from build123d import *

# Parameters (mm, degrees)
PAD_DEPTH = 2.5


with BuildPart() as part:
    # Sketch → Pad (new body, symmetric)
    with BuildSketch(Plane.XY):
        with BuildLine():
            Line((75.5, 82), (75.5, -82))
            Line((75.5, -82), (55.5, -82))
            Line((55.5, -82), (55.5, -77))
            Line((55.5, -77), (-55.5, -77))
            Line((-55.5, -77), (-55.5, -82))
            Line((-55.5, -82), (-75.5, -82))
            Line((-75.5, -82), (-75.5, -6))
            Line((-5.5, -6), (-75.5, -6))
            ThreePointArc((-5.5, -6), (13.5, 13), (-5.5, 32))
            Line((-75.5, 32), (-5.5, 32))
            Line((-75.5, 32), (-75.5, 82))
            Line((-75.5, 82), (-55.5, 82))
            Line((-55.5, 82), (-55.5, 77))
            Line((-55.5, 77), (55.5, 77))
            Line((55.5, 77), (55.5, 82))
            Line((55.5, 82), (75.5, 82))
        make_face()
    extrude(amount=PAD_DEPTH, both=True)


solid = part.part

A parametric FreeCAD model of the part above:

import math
import FreeCAD as App
import Part
import Sketcher

V = App.Vector
Q = App.Units.Quantity

doc = App.newDocument("Part")
body = doc.addObject("PartDesign::Body", "Body")

# Sketch on XY plane
sketch1 = body.newObject("Sketcher::SketchObject", "Sketch")
sketch1.AttachmentSupport = (doc.getObject("XY_Plane"), [""])
sketch1.MapMode = "FlatFace"
sketch1.addGeometry([
    Part.LineSegment(V(76, -82, 0), V(76, 82, 0)),  # 0
    Part.LineSegment(V(76, 82, 0), V(56, 82, 0)),  # 1
    Part.LineSegment(V(56, 82, 0), V(56, 77, 0)),  # 2
    Part.LineSegment(V(56, 77, 0), V(-56, 77, 0)),  # 3
    Part.LineSegment(V(-56, 77, 0), V(-56, 82, 0)),  # 4
    Part.LineSegment(V(-56, 82, 0), V(-76, 82, 0)),  # 5
    Part.LineSegment(V(-76, 82, 0), V(-76, 32, 0)),  # 6
    Part.LineSegment(V(-76, 32, 0), V(-6, 32, 0)),  # 7
    Part.ArcOfCircle(Part.Circle(V(-6, 13, 0), V(0, 0, 1), 19), math.radians(-90), math.radians(90)),  # 8
    Part.LineSegment(V(-6, -6, 0), V(-76, -6, 0)),  # 9
    Part.LineSegment(V(-76, -6, 0), V(-76, -82, 0)),  # 10
    Part.LineSegment(V(-76, -82, 0), V(-56, -82, 0)),  # 11
    Part.LineSegment(V(-56, -82, 0), V(-56, -77, 0)),  # 12
    Part.LineSegment(V(-56, -77, 0), V(56, -77, 0)),  # 13
    Part.LineSegment(V(56, -77, 0), V(56, -82, 0)),  # 14
    Part.LineSegment(V(56, -82, 0), V(76, -82, 0)),  # 15
], False)
sketch1.addConstraint([
    Sketcher.Constraint("Coincident", 0, 2, 1, 1),
    Sketcher.Constraint("Coincident", 1, 2, 2, 1),
    Sketcher.Constraint("Coincident", 2, 2, 3, 1),
    Sketcher.Constraint("Coincident", 3, 2, 4, 1),
    Sketcher.Constraint("Coincident", 4, 2, 5, 1),
    Sketcher.Constraint("Coincident", 5, 2, 6, 1),
    Sketcher.Constraint("Coincident", 6, 2, 7, 1),
    Sketcher.Constraint("Tangent", 7, 2, 8, 2),
    Sketcher.Constraint("Tangent", 8, 1, 9, 1),
    Sketcher.Constraint("Coincident", 9, 2, 10, 1),
    Sketcher.Constraint("Coincident", 10, 2, 11, 1),
    Sketcher.Constraint("Coincident", 11, 2, 12, 1),
    Sketcher.Constraint("Coincident", 12, 2, 13, 1),
    Sketcher.Constraint("Coincident", 13, 2, 14, 1),
    Sketcher.Constraint("Coincident", 14, 2, 15, 1),
    Sketcher.Constraint("Coincident", 15, 2, 0, 1),
    Sketcher.Constraint("Vertical", 0),
    Sketcher.Constraint("Horizontal", 1),
    Sketcher.Constraint("Vertical", 2),
    Sketcher.Constraint("Horizontal", 3),
    Sketcher.Constraint("Vertical", 4),
    Sketcher.Constraint("Horizontal", 5),
    Sketcher.Constraint("Vertical", 6),
    Sketcher.Constraint("Horizontal", 7),
    Sketcher.Constraint("Horizontal", 9),
    Sketcher.Constraint("Vertical", 10),
    Sketcher.Constraint("Horizontal", 11),
    Sketcher.Constraint("Vertical", 12),
    Sketcher.Constraint("Horizontal", 13),
    Sketcher.Constraint("Vertical", 14),
    Sketcher.Constraint("Horizontal", 15),
    Sketcher.Constraint("Symmetric", 0, 2, 10, 2, -1, 1),
    Sketcher.Constraint("Symmetric", 2, 2, 12, 2, -1, 1),
    Sketcher.Constraint("Symmetric", 4, 2, 14, 2, -1, 1),
    Sketcher.Constraint("Symmetric", 1, 2, 4, 2, -2),
    Sketcher.Constraint("Vertical", 6, 2, 9, 2),
    Sketcher.Constraint("Radius", 8, Q("19 mm")),
    Sketcher.Constraint("DistanceX", 1, 2, 1, 1, Q("20 mm")),
    Sketcher.Constraint("DistanceX", 3, 2, 3, 1, Q("111 mm")),
    Sketcher.Constraint("DistanceX", 7, 1, 7, 2, Q("70 mm")),
    Sketcher.Constraint("DistanceY", 0, 1, 0, 2, Q("164 mm")),
    Sketcher.Constraint("DistanceY", 2, 2, 2, 1, Q("5 mm")),
    Sketcher.Constraint("DistanceY", 6, 2, 6, 1, Q("50 mm")),
])
pad1 = body.newObject("PartDesign::Pad", "Pad")
pad1.Profile = sketch1
pad1.Length = 5
pad1.Midplane = True

doc.recompute()
